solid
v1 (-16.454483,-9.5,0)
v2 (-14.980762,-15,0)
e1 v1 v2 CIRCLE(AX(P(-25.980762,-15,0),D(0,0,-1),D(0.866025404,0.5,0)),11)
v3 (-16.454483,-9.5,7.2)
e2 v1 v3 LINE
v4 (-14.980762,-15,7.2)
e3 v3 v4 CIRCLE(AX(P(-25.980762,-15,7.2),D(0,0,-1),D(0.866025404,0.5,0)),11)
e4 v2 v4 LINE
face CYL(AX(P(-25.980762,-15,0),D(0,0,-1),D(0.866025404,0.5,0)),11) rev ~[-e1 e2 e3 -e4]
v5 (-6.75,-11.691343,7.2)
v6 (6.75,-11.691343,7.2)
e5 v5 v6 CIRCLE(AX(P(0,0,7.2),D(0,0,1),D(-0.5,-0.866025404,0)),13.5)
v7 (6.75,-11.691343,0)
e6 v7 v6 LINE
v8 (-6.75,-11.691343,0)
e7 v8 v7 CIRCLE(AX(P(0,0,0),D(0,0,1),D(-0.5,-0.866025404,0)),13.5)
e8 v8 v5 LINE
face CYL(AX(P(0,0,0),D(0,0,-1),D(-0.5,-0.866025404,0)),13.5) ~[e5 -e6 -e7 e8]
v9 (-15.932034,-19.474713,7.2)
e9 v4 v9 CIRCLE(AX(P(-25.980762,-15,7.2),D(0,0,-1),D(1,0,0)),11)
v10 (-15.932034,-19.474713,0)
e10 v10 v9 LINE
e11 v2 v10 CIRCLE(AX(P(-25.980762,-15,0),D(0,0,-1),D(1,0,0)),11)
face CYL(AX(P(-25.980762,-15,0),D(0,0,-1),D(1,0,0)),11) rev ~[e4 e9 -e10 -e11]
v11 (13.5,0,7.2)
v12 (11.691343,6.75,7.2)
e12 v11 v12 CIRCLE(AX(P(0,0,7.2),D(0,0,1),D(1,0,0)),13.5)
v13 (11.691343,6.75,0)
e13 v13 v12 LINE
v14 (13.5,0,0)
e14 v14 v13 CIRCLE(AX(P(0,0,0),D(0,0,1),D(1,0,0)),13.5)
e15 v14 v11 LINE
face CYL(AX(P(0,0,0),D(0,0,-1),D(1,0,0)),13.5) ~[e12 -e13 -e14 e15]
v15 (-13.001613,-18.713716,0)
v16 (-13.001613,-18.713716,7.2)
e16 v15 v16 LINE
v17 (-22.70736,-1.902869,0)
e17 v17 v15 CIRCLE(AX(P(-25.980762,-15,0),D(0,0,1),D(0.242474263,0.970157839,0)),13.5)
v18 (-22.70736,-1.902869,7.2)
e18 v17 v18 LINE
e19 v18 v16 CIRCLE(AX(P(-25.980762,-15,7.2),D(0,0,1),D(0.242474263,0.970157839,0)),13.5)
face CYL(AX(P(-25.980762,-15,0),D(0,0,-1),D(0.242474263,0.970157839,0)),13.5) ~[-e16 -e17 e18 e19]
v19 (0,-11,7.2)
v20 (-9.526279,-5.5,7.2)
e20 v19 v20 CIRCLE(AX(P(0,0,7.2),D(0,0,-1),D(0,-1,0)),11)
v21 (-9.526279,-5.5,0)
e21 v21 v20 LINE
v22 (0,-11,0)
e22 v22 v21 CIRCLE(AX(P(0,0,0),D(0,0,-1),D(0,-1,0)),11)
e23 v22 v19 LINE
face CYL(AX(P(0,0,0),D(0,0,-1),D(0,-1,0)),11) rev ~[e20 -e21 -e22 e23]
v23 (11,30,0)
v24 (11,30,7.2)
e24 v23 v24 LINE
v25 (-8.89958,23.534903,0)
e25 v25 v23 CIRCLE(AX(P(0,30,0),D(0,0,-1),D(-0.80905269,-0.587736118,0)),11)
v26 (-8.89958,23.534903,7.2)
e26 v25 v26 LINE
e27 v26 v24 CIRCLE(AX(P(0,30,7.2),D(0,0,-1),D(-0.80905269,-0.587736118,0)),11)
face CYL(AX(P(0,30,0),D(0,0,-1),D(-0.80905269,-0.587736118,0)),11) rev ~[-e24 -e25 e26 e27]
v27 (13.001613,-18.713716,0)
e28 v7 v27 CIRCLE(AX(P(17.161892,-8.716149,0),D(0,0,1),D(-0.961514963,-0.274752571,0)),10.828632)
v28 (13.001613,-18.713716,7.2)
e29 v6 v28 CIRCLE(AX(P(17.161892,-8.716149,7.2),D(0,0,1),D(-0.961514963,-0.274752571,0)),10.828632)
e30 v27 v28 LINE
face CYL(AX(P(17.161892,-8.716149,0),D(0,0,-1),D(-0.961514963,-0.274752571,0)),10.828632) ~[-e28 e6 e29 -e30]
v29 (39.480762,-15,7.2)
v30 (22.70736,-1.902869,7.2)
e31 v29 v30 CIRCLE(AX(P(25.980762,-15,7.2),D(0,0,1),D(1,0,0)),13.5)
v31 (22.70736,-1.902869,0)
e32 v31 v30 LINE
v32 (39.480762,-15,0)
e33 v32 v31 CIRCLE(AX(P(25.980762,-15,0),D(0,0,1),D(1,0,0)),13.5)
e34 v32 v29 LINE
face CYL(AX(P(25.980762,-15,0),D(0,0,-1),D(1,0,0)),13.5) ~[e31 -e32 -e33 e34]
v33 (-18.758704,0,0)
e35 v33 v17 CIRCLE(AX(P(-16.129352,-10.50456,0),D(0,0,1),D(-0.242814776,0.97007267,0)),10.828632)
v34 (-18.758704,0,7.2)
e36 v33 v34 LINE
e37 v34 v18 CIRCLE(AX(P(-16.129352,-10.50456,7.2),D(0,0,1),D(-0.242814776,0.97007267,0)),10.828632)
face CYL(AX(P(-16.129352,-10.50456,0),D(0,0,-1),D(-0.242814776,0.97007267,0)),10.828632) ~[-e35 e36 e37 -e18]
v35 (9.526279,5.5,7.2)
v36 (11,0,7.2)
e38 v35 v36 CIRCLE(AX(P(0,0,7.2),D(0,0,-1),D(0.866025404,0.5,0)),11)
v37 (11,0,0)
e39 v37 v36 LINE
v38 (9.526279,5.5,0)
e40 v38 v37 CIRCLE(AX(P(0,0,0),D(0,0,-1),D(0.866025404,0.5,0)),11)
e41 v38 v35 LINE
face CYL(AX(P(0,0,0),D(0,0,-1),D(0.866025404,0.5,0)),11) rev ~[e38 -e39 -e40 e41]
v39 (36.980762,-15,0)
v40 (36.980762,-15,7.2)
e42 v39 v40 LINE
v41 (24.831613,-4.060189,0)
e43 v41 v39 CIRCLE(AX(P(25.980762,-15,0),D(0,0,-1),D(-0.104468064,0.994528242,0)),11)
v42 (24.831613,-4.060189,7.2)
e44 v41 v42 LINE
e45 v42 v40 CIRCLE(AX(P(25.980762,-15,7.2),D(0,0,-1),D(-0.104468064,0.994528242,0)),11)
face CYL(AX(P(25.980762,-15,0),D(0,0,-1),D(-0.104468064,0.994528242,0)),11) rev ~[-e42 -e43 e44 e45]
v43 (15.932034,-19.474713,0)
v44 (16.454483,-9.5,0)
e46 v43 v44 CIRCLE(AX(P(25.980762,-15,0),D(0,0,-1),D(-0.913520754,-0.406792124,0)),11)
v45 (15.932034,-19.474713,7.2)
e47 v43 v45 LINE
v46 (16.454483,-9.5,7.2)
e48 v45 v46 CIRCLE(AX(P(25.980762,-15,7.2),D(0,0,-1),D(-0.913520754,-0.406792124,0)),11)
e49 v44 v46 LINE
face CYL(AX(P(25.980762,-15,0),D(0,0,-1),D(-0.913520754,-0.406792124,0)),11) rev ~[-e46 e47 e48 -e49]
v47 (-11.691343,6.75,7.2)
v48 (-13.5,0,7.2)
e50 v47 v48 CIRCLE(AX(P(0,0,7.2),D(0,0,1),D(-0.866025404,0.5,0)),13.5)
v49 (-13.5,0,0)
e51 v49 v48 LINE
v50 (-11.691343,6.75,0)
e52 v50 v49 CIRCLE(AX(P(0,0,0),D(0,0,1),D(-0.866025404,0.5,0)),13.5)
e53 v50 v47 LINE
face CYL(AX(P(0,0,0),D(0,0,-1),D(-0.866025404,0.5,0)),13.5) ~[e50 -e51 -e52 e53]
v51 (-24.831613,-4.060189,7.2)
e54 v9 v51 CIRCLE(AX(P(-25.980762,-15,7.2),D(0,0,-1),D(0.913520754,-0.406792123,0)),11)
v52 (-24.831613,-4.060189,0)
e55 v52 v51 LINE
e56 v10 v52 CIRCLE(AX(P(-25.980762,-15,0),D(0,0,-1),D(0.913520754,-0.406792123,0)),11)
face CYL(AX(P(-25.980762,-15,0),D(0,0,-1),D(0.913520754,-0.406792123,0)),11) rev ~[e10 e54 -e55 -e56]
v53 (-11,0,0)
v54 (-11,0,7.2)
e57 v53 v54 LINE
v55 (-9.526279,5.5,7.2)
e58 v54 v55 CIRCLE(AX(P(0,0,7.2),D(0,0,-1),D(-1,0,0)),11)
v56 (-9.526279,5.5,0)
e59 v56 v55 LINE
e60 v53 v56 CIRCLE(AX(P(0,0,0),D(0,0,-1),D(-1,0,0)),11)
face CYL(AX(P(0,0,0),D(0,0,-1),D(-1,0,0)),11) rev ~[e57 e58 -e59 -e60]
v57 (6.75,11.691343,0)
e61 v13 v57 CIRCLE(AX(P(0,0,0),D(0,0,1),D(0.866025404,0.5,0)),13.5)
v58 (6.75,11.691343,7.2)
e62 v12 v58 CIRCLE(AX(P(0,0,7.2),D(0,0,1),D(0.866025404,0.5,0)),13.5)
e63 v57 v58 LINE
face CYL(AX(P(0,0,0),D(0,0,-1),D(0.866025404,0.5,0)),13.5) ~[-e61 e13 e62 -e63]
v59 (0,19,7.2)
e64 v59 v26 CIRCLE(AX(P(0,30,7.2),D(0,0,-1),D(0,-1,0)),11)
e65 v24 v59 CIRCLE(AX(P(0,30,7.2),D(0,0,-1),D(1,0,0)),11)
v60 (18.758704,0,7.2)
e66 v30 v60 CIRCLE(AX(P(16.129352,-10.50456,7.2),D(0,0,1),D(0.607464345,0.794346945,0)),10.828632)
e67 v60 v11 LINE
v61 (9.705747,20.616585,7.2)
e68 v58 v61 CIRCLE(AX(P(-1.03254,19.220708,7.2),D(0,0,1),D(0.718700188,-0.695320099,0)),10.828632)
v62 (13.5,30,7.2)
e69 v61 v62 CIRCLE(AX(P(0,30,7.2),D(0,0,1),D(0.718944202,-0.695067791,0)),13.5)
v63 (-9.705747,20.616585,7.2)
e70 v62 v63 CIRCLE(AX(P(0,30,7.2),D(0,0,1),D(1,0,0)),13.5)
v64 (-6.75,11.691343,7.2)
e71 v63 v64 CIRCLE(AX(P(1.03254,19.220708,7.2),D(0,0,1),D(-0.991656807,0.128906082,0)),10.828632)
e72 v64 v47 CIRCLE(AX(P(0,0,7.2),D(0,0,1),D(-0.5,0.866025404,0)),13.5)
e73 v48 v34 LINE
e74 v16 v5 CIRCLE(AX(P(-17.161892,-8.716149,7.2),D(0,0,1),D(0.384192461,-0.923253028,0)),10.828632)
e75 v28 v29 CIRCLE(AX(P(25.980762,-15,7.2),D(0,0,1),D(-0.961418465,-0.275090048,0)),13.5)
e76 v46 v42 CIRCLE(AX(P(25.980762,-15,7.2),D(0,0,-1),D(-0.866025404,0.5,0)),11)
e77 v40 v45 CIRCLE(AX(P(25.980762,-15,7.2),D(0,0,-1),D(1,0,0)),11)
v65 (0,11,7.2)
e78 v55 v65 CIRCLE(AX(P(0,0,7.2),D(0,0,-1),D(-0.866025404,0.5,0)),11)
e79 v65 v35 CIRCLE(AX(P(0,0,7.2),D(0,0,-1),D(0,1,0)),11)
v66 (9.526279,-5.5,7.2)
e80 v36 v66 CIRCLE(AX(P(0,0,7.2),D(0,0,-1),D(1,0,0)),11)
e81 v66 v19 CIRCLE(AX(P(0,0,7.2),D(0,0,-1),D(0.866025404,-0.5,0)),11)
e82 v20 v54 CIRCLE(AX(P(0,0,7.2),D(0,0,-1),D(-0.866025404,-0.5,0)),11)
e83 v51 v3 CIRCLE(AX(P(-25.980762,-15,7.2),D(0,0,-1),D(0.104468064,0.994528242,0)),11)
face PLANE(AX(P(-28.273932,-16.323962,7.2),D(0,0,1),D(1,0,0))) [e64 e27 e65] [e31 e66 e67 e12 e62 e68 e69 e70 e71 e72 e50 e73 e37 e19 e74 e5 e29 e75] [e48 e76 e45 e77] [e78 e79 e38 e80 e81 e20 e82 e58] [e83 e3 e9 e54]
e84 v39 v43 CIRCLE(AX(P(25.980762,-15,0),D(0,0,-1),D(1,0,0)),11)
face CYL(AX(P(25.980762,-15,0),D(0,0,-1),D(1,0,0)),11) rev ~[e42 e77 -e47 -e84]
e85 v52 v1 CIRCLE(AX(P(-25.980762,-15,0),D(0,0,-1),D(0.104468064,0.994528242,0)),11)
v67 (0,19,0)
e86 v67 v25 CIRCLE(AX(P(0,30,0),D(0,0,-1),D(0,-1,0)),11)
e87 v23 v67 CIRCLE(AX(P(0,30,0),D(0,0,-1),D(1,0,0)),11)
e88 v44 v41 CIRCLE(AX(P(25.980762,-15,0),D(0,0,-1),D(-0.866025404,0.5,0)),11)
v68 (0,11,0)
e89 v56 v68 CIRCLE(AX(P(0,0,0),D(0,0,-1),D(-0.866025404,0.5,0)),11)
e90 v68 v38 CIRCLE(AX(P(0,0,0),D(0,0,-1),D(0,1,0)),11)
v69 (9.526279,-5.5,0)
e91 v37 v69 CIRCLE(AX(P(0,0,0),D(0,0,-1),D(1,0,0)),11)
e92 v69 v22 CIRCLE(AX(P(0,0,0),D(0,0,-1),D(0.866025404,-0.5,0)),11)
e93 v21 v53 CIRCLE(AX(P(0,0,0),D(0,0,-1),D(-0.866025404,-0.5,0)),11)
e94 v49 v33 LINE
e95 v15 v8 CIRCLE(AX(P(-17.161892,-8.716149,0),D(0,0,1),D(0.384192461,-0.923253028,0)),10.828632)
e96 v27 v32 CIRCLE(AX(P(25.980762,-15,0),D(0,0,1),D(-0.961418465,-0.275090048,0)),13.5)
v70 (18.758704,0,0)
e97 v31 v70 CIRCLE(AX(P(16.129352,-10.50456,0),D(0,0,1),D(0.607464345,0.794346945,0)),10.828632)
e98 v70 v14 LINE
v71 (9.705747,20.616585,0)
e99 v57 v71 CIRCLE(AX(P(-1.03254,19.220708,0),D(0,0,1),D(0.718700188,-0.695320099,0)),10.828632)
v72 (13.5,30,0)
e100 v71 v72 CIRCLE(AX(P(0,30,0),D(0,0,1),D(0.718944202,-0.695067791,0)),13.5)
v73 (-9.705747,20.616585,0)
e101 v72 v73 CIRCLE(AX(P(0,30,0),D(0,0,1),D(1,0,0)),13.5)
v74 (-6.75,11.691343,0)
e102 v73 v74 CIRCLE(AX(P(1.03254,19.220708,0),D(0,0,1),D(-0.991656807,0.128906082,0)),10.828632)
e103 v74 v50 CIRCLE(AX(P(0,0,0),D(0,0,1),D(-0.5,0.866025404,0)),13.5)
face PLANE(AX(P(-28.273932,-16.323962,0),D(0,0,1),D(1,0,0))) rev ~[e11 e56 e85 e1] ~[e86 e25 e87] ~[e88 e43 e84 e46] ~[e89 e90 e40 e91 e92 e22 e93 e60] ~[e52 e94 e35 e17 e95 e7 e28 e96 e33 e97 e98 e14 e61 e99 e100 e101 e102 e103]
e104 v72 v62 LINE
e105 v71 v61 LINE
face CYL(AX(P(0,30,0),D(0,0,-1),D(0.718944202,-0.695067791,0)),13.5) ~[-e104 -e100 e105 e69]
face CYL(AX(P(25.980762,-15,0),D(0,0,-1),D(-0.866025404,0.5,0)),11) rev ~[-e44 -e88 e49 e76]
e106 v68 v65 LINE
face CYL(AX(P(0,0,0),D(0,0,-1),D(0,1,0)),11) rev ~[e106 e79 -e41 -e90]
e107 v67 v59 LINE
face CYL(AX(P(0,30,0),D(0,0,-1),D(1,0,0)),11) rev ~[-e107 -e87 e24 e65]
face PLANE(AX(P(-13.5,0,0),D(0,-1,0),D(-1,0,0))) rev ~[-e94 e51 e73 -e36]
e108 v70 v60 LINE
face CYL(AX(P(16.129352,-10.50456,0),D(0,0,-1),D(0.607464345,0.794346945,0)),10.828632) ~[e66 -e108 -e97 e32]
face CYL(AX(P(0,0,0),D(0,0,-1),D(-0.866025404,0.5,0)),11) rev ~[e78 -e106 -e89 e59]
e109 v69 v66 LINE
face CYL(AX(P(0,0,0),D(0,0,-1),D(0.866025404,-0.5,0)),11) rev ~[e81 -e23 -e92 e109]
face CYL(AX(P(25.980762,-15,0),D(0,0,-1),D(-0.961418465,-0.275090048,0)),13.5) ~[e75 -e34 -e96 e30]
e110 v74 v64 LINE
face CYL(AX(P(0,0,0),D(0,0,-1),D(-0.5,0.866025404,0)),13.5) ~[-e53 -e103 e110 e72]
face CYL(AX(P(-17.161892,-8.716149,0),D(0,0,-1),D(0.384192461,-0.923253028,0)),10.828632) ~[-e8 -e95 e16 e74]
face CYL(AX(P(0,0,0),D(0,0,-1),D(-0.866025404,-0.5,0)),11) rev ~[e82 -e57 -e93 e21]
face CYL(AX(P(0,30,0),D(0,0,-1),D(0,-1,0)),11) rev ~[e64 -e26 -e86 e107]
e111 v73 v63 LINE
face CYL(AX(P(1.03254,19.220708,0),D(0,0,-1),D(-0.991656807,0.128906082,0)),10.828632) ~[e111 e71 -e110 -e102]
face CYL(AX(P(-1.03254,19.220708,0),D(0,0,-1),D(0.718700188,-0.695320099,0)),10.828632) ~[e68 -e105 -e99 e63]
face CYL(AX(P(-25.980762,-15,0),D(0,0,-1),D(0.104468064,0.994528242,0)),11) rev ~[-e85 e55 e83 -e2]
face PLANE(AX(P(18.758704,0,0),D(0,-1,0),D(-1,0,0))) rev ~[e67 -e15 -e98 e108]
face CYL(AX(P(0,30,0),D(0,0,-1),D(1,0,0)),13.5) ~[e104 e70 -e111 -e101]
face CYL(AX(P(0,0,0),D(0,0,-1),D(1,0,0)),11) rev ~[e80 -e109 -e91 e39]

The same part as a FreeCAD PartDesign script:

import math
import FreeCAD as App
import Part
import Sketcher

V = App.Vector

doc = App.newDocument("Part")
body = doc.addObject("PartDesign::Body", "Body")

sketch1 = body.newObject("Sketcher::SketchObject", "Sketch")
sketch1.AttachmentSupport = (doc.getObject("XY_Plane"), [""])
sketch1.MapMode = "FlatFace"
sketch1.addGeometry([
    Part.ArcOfCircle(Part.Circle(V(-25.980762, -15, 0), V(0, 0, 1), 13.5), math.radians(75.96738), math.radians(344.03262)),
    Part.ArcOfCircle(Part.Circle(V(-17.161892, -8.716149, 0), V(0, 0, 1), 10.828632), math.radians(-67.406384), math.radians(-15.94727)),
    Part.ArcOfCircle(Part.Circle(V(0, 0, 0), V(0, 0, 1), 13.5), math.radians(-120), math.radians(-60)),
    Part.ArcOfCircle(Part.Circle(V(17.161892, -8.716149, 0), V(0, 0, 1), 10.828632), math.radians(-164.05273), math.radians(-112.593616)),
    Part.ArcOfCircle(Part.Circle(V(25.980762, -15, 0), V(0, 0, 1), 13.5), math.radians(-164.03262), math.radians(0)),
    Part.ArcOfCircle(Part.Circle(V(25.980762, -15, 0), V(0, 0, 1), 13.5), math.radians(0), math.radians(104.03262)),
    Part.ArcOfCircle(Part.Circle(V(16.129352, -10.50456, 0), V(0, 0, 1), 10.828632), math.radians(52.593616), math.radians(75.94727)),
    Part.LineSegment(V(18.758704, 0, 0), V(13.5, 0, 0)),
    Part.ArcOfCircle(Part.Circle(V(0, 0, 0), V(0, 0, 1), 13.5), math.radians(0), math.radians(30)),
    Part.ArcOfCircle(Part.Circle(V(0, 0, 0), V(0, 0, 1), 13.5), math.radians(30), math.radians(60)),
    Part.ArcOfCircle(Part.Circle(V(-1.03254, 19.220708, 0), V(0, 0, 1), 10.828632), math.radians(-44.05273), math.radians(7.406384)),
    Part.ArcOfCircle(Part.Circle(V(0, 30, 0), V(0, 0, 1), 13.5), math.radians(-44.03262), math.radians(0)),
    Part.ArcOfCircle(Part.Circle(V(0, 30, 0), V(0, 0, 1), 13.5), math.radians(0), math.radians(224.03262)),
    Part.ArcOfCircle(Part.Circle(V(1.03254, 19.220708, 0), V(0, 0, 1), 10.828632), math.radians(172.593616), math.radians(224.05273)),
    Part.ArcOfCircle(Part.Circle(V(0, 0, 0), V(0, 0, 1), 13.5), math.radians(120), math.radians(150)),
    Part.ArcOfCircle(Part.Circle(V(0, 0, 0), V(0, 0, 1), 13.5), math.radians(150), math.radians(180)),
    Part.LineSegment(V(-13.5, 0, 0), V(-18.758704, 0, 0)),
    Part.ArcOfCircle(Part.Circle(V(-16.129352, -10.50456, 0), V(0, 0, 1), 10.828632), math.radians(104.05273), math.radians(127.406384)),
    Part.ArcOfCircle(Part.Circle(V(0, 30, 0), V(0, 0, 1), 11), math.radians(-144.00348), math.radians(-90)),
    Part.ArcOfCircle(Part.Circle(V(0, 30, 0), V(0, 0, 1), 11), math.radians(0), math.radians(215.99652)),
    Part.ArcOfCircle(Part.Circle(V(0, 30, 0), V(0, 0, 1), 11), math.radians(-90), math.radians(0)),
    Part.ArcOfCircle(Part.Circle(V(0, 0, 0), V(0, 0, 1), 11), math.radians(30), math.radians(90)),
    Part.ArcOfCircle(Part.Circle(V(0, 0, 0), V(0, 0, 1), 11), math.radians(0), math.radians(30)),
    Part.ArcOfCircle(Part.Circle(V(0, 0, 0), V(0, 0, 1), 11), math.radians(-30), math.radians(0)),
    Part.ArcOfCircle(Part.Circle(V(0, 0, 0), V(0, 0, 1), 11), math.radians(-90), math.radians(-30)),
    Part.ArcOfCircle(Part.Circle(V(0, 0, 0), V(0, 0, 1), 11), math.radians(-150), math.radians(-90)),
    Part.ArcOfCircle(Part.Circle(V(0, 0, 0), V(0, 0, 1), 11), math.radians(180), math.radians(210)),
    Part.ArcOfCircle(Part.Circle(V(0, 0, 0), V(0, 0, 1), 11), math.radians(150), math.radians(180)),
    Part.ArcOfCircle(Part.Circle(V(0, 0, 0), V(0, 0, 1), 11), math.radians(90), math.radians(150)),
    Part.ArcOfCircle(Part.Circle(V(-25.980762, -15, 0), V(0, 0, 1), 11), math.radians(30), math.radians(84.00348)),
    Part.ArcOfCircle(Part.Circle(V(-25.980762, -15, 0), V(0, 0, 1), 11), math.radians(0), math.radians(30)),
    Part.ArcOfCircle(Part.Circle(V(-25.980762, -15, 0), V(0, 0, 1), 11), math.radians(-24.00348), math.radians(0)),
    Part.ArcOfCircle(Part.Circle(V(-25.980762, -15, 0), V(0, 0, 1), 11), math.radians(84.00348), math.radians(335.99652)),
    Part.ArcOfCircle(Part.Circle(V(25.980762, -15, 0), V(0, 0, 1), 11), math.radians(-155.99652), math.radians(0)),
    Part.ArcOfCircle(Part.Circle(V(25.980762, -15, 0), V(0, 0, 1), 11), math.radians(150), math.radians(204.00348)),
    Part.ArcOfCircle(Part.Circle(V(25.980762, -15, 0), V(0, 0, 1), 11), math.radians(95.99652), math.radians(150)),
    Part.ArcOfCircle(Part.Circle(V(25.980762, -15, 0), V(0, 0, 1), 11), math.radians(0), math.radians(95.99652)),
], False)
sketch1.addConstraint([
    Sketcher.Constraint("Coincident", 0, 2, 1, 1),
    Sketcher.Constraint("Coincident", 1, 2, 2, 1),
    Sketcher.Constraint("Coincident", 2, 2, 3, 1),
    Sketcher.Constraint("Coincident", 3, 2, 4, 1),
    Sketcher.Constraint("Tangent", 4, 2, 5, 1),
    Sketcher.Constraint("Coincident", 5, 2, 6, 1),
    Sketcher.Constraint("Coincident", 6, 2, 7, 1),
    Sketcher.Constraint("Coincident", 7, 2, 8, 1),
    Sketcher.Constraint("Tangent", 8, 2, 9, 1),
    Sketcher.Constraint("Coincident", 9, 2, 10, 1),
    Sketcher.Constraint("Coincident", 10, 2, 11, 1),
    Sketcher.Constraint("Tangent", 11, 2, 12, 1),
    Sketcher.Constraint("Coincident", 12, 2, 13, 1),
    Sketcher.Constraint("Coincident", 13, 2, 14, 1),
    Sketcher.Constraint("Tangent", 14, 2, 15, 1),
    Sketcher.Constraint("Coincident", 15, 2, 16, 1),
    Sketcher.Constraint("Coincident", 16, 2, 17, 1),
    Sketcher.Constraint("Coincident", 17, 2, 0, 1),
    Sketcher.Constraint("Tangent", 18, 1, 19, 2),
    Sketcher.Constraint("Tangent", 19, 1, 20, 2),
    Sketcher.Constraint("Tangent", 20, 1, 18, 2),
    Sketcher.Constraint("Tangent", 21, 1, 22, 2),
    Sketcher.Constraint("Tangent", 22, 1, 23, 2),
    Sketcher.Constraint("Tangent", 23, 1, 24, 2),
    Sketcher.Constraint("Tangent", 24, 1, 25, 2),
    Sketcher.Constraint("Tangent", 25, 1, 26, 2),
    Sketcher.Constraint("Tangent", 26, 1, 27, 2),
    Sketcher.Constraint("Tangent", 27, 1, 28, 2),
    Sketcher.Constraint("Tangent", 28, 1, 21, 2),
    Sketcher.Constraint("Tangent", 29, 1, 30, 2),
    Sketcher.Constraint("Tangent", 30, 1, 31, 2),
    Sketcher.Constraint("Tangent", 31, 1, 32, 2),
    Sketcher.Constraint("Tangent", 32, 1, 29, 2),
    Sketcher.Constraint("Tangent", 33, 1, 34, 2),
    Sketcher.Constraint("Tangent", 34, 1, 35, 2),
    Sketcher.Constraint("Tangent", 35, 1, 36, 2),
    Sketcher.Constraint("Tangent", 36, 1, 33, 2),
    Sketcher.Constraint("Horizontal", 7),
    Sketcher.Constraint("Horizontal", 16),
    Sketcher.Constraint("Coincident", 2, 3, -1, 1),
    Sketcher.Constraint("Coincident", 8, 3, -1, 1),
    Sketcher.Constraint("Coincident", 14, 3, -1, 1),
    Sketcher.Constraint("Coincident", 21, 3, -1, 1),
    Sketcher.Constraint("Coincident", 23, 3, -1, 1),
    Sketcher.Constraint("Coincident", 25, 3, -1, 1),
    Sketcher.Constraint("Coincident", 18, 3, 11, 3),
    Sketcher.Constraint("Coincident", 29, 3, 0, 3),
    Sketcher.Constraint("Coincident", 33, 3, 4, 3),
    Sketcher.Constraint("Equal", 0, 2),
    Sketcher.Constraint("Equal", 1, 3),
    Sketcher.Constraint("Equal", 2, 4),
    Sketcher.Constraint("Equal", 4, 5),
    Sketcher.Constraint("Equal", 3, 6),
    Sketcher.Constraint("Equal", 5, 8),
    Sketcher.Constraint("Equal", 8, 9),
    Sketcher.Constraint("Equal", 6, 10),
    Sketcher.Constraint("Equal", 9, 11),
    Sketcher.Constraint("Equal", 11, 12),
    Sketcher.Constraint("Equal", 10, 13),
    Sketcher.Constraint("Equal", 12, 14),
    Sketcher.Constraint("Equal", 14, 15),
    Sketcher.Constraint("Equal", 13, 17),
    Sketcher.Constraint("Equal", 20, 21),
    Sketcher.Constraint("Equal", 25, 26),
    Sketcher.Constraint("Equal", 28, 29),
    Sketcher.Constraint("Equal", 29, 30),
    Sketcher.Constraint("Equal", 32, 33),
    Sketcher.Constraint("Equal", 33, 34),
    Sketcher.Constraint("Symmetric", 6, 2, 16, 2, -1, 1),
    Sketcher.Constraint("Symmetric", 1, 3, 3, 3, -2),
    Sketcher.Constraint("Symmetric", 0, 3, 4, 3, -2),
    Sketcher.Constraint("Symmetric", 10, 3, 13, 3, -2),
    Sketcher.Constraint("Symmetric", 6, 3, 17, 3, -2),
    Sketcher.Constraint("PointOnObject", 11, 3, -2),
    Sketcher.Constraint("PointOnObject", 20, 1, -2),
    Sketcher.Constraint("PointOnObject", 22, 1, -1),
    Sketcher.Constraint("PointOnObject", 24, 1, -2),
    Sketcher.Constraint("PointOnObject", 26, 1, -1),
    Sketcher.Constraint("PointOnObject", 28, 1, -2),
    Sketcher.Constraint("Horizontal", 36, 3, 4, 2),
    Sketcher.Constraint("Horizontal", 20, 3, 11, 2),
    Sketcher.Constraint("Horizontal", 8, 2, 14, 2),
    Sketcher.Constraint("Horizontal", 11, 2, 19, 1),
    Sketcher.Constraint("Horizontal", 23, 1, 25, 1),
    Sketcher.Constraint("Horizontal", 21, 1, 27, 1),
    Sketcher.Constraint("Horizontal", 4, 2, 30, 1),
    Sketcher.Constraint("Horizontal", 31, 1, 33, 1),
    Sketcher.Constraint("Horizontal", 29, 1, 34, 1),
    Sketcher.Constraint("Horizontal", 32, 1, 35, 1),
    Sketcher.Constraint("Horizontal", 30, 1, 36, 1),
    Sketcher.Constraint("Vertical", 2, 2, 9, 2),
    Sketcher.Constraint("Vertical", 21, 1, 23, 1),
    Sketcher.Constraint("Radius", 18, 11.0),
    Sketcher.Constraint("Radius", 0, 13.5),
    Sketcher.Constraint("DistanceY", 0, 3, -1, 1, 15.0),
    Sketcher.Constraint("DistanceY", -1, 1, 11, 3, 30.0),
    Sketcher.Constraint("DistanceY", -1, 1, 21, 1, 5.5),
    Sketcher.Constraint("DistanceY", 29, 1, -1, 1, 9.5),
    Sketcher.Constraint("DistanceX", 1, 2, -1, 1, 6.75),
    Sketcher.Constraint("DistanceY", -1, 1, 8, 2, 6.75),
    Sketcher.Constraint("Radius", 1, 10.828632),
    Sketcher.Constraint("DistanceX", 7, 2, 7, 1, 5.258704),
    Sketcher.Constraint("DistanceX", 1, 3, -1, 1, 17.161892),
    Sketcher.Constraint("DistanceX", -1, 1, 6, 3, 16.129352),
    Sketcher.Constraint("DistanceX", 10, 3, -1, 1, 1.03254),
    Sketcher.Constraint("DistanceX", -1, 1, 5, 2, 22.70736),
    Sketcher.Constraint("DistanceX", 18, 1, -1, 1, 8.89958),
    Sketcher.Constraint("DistanceY", 32, 1, -1, 1, 4.060189),
    Sketcher.Constraint("DistanceX", 31, 1, -1, 1, 15.932034),
])
pad1 = body.newObject("PartDesign::Pad", "Pad")
pad1.Profile = sketch1
pad1.Length = 7.2

doc.recompute()
